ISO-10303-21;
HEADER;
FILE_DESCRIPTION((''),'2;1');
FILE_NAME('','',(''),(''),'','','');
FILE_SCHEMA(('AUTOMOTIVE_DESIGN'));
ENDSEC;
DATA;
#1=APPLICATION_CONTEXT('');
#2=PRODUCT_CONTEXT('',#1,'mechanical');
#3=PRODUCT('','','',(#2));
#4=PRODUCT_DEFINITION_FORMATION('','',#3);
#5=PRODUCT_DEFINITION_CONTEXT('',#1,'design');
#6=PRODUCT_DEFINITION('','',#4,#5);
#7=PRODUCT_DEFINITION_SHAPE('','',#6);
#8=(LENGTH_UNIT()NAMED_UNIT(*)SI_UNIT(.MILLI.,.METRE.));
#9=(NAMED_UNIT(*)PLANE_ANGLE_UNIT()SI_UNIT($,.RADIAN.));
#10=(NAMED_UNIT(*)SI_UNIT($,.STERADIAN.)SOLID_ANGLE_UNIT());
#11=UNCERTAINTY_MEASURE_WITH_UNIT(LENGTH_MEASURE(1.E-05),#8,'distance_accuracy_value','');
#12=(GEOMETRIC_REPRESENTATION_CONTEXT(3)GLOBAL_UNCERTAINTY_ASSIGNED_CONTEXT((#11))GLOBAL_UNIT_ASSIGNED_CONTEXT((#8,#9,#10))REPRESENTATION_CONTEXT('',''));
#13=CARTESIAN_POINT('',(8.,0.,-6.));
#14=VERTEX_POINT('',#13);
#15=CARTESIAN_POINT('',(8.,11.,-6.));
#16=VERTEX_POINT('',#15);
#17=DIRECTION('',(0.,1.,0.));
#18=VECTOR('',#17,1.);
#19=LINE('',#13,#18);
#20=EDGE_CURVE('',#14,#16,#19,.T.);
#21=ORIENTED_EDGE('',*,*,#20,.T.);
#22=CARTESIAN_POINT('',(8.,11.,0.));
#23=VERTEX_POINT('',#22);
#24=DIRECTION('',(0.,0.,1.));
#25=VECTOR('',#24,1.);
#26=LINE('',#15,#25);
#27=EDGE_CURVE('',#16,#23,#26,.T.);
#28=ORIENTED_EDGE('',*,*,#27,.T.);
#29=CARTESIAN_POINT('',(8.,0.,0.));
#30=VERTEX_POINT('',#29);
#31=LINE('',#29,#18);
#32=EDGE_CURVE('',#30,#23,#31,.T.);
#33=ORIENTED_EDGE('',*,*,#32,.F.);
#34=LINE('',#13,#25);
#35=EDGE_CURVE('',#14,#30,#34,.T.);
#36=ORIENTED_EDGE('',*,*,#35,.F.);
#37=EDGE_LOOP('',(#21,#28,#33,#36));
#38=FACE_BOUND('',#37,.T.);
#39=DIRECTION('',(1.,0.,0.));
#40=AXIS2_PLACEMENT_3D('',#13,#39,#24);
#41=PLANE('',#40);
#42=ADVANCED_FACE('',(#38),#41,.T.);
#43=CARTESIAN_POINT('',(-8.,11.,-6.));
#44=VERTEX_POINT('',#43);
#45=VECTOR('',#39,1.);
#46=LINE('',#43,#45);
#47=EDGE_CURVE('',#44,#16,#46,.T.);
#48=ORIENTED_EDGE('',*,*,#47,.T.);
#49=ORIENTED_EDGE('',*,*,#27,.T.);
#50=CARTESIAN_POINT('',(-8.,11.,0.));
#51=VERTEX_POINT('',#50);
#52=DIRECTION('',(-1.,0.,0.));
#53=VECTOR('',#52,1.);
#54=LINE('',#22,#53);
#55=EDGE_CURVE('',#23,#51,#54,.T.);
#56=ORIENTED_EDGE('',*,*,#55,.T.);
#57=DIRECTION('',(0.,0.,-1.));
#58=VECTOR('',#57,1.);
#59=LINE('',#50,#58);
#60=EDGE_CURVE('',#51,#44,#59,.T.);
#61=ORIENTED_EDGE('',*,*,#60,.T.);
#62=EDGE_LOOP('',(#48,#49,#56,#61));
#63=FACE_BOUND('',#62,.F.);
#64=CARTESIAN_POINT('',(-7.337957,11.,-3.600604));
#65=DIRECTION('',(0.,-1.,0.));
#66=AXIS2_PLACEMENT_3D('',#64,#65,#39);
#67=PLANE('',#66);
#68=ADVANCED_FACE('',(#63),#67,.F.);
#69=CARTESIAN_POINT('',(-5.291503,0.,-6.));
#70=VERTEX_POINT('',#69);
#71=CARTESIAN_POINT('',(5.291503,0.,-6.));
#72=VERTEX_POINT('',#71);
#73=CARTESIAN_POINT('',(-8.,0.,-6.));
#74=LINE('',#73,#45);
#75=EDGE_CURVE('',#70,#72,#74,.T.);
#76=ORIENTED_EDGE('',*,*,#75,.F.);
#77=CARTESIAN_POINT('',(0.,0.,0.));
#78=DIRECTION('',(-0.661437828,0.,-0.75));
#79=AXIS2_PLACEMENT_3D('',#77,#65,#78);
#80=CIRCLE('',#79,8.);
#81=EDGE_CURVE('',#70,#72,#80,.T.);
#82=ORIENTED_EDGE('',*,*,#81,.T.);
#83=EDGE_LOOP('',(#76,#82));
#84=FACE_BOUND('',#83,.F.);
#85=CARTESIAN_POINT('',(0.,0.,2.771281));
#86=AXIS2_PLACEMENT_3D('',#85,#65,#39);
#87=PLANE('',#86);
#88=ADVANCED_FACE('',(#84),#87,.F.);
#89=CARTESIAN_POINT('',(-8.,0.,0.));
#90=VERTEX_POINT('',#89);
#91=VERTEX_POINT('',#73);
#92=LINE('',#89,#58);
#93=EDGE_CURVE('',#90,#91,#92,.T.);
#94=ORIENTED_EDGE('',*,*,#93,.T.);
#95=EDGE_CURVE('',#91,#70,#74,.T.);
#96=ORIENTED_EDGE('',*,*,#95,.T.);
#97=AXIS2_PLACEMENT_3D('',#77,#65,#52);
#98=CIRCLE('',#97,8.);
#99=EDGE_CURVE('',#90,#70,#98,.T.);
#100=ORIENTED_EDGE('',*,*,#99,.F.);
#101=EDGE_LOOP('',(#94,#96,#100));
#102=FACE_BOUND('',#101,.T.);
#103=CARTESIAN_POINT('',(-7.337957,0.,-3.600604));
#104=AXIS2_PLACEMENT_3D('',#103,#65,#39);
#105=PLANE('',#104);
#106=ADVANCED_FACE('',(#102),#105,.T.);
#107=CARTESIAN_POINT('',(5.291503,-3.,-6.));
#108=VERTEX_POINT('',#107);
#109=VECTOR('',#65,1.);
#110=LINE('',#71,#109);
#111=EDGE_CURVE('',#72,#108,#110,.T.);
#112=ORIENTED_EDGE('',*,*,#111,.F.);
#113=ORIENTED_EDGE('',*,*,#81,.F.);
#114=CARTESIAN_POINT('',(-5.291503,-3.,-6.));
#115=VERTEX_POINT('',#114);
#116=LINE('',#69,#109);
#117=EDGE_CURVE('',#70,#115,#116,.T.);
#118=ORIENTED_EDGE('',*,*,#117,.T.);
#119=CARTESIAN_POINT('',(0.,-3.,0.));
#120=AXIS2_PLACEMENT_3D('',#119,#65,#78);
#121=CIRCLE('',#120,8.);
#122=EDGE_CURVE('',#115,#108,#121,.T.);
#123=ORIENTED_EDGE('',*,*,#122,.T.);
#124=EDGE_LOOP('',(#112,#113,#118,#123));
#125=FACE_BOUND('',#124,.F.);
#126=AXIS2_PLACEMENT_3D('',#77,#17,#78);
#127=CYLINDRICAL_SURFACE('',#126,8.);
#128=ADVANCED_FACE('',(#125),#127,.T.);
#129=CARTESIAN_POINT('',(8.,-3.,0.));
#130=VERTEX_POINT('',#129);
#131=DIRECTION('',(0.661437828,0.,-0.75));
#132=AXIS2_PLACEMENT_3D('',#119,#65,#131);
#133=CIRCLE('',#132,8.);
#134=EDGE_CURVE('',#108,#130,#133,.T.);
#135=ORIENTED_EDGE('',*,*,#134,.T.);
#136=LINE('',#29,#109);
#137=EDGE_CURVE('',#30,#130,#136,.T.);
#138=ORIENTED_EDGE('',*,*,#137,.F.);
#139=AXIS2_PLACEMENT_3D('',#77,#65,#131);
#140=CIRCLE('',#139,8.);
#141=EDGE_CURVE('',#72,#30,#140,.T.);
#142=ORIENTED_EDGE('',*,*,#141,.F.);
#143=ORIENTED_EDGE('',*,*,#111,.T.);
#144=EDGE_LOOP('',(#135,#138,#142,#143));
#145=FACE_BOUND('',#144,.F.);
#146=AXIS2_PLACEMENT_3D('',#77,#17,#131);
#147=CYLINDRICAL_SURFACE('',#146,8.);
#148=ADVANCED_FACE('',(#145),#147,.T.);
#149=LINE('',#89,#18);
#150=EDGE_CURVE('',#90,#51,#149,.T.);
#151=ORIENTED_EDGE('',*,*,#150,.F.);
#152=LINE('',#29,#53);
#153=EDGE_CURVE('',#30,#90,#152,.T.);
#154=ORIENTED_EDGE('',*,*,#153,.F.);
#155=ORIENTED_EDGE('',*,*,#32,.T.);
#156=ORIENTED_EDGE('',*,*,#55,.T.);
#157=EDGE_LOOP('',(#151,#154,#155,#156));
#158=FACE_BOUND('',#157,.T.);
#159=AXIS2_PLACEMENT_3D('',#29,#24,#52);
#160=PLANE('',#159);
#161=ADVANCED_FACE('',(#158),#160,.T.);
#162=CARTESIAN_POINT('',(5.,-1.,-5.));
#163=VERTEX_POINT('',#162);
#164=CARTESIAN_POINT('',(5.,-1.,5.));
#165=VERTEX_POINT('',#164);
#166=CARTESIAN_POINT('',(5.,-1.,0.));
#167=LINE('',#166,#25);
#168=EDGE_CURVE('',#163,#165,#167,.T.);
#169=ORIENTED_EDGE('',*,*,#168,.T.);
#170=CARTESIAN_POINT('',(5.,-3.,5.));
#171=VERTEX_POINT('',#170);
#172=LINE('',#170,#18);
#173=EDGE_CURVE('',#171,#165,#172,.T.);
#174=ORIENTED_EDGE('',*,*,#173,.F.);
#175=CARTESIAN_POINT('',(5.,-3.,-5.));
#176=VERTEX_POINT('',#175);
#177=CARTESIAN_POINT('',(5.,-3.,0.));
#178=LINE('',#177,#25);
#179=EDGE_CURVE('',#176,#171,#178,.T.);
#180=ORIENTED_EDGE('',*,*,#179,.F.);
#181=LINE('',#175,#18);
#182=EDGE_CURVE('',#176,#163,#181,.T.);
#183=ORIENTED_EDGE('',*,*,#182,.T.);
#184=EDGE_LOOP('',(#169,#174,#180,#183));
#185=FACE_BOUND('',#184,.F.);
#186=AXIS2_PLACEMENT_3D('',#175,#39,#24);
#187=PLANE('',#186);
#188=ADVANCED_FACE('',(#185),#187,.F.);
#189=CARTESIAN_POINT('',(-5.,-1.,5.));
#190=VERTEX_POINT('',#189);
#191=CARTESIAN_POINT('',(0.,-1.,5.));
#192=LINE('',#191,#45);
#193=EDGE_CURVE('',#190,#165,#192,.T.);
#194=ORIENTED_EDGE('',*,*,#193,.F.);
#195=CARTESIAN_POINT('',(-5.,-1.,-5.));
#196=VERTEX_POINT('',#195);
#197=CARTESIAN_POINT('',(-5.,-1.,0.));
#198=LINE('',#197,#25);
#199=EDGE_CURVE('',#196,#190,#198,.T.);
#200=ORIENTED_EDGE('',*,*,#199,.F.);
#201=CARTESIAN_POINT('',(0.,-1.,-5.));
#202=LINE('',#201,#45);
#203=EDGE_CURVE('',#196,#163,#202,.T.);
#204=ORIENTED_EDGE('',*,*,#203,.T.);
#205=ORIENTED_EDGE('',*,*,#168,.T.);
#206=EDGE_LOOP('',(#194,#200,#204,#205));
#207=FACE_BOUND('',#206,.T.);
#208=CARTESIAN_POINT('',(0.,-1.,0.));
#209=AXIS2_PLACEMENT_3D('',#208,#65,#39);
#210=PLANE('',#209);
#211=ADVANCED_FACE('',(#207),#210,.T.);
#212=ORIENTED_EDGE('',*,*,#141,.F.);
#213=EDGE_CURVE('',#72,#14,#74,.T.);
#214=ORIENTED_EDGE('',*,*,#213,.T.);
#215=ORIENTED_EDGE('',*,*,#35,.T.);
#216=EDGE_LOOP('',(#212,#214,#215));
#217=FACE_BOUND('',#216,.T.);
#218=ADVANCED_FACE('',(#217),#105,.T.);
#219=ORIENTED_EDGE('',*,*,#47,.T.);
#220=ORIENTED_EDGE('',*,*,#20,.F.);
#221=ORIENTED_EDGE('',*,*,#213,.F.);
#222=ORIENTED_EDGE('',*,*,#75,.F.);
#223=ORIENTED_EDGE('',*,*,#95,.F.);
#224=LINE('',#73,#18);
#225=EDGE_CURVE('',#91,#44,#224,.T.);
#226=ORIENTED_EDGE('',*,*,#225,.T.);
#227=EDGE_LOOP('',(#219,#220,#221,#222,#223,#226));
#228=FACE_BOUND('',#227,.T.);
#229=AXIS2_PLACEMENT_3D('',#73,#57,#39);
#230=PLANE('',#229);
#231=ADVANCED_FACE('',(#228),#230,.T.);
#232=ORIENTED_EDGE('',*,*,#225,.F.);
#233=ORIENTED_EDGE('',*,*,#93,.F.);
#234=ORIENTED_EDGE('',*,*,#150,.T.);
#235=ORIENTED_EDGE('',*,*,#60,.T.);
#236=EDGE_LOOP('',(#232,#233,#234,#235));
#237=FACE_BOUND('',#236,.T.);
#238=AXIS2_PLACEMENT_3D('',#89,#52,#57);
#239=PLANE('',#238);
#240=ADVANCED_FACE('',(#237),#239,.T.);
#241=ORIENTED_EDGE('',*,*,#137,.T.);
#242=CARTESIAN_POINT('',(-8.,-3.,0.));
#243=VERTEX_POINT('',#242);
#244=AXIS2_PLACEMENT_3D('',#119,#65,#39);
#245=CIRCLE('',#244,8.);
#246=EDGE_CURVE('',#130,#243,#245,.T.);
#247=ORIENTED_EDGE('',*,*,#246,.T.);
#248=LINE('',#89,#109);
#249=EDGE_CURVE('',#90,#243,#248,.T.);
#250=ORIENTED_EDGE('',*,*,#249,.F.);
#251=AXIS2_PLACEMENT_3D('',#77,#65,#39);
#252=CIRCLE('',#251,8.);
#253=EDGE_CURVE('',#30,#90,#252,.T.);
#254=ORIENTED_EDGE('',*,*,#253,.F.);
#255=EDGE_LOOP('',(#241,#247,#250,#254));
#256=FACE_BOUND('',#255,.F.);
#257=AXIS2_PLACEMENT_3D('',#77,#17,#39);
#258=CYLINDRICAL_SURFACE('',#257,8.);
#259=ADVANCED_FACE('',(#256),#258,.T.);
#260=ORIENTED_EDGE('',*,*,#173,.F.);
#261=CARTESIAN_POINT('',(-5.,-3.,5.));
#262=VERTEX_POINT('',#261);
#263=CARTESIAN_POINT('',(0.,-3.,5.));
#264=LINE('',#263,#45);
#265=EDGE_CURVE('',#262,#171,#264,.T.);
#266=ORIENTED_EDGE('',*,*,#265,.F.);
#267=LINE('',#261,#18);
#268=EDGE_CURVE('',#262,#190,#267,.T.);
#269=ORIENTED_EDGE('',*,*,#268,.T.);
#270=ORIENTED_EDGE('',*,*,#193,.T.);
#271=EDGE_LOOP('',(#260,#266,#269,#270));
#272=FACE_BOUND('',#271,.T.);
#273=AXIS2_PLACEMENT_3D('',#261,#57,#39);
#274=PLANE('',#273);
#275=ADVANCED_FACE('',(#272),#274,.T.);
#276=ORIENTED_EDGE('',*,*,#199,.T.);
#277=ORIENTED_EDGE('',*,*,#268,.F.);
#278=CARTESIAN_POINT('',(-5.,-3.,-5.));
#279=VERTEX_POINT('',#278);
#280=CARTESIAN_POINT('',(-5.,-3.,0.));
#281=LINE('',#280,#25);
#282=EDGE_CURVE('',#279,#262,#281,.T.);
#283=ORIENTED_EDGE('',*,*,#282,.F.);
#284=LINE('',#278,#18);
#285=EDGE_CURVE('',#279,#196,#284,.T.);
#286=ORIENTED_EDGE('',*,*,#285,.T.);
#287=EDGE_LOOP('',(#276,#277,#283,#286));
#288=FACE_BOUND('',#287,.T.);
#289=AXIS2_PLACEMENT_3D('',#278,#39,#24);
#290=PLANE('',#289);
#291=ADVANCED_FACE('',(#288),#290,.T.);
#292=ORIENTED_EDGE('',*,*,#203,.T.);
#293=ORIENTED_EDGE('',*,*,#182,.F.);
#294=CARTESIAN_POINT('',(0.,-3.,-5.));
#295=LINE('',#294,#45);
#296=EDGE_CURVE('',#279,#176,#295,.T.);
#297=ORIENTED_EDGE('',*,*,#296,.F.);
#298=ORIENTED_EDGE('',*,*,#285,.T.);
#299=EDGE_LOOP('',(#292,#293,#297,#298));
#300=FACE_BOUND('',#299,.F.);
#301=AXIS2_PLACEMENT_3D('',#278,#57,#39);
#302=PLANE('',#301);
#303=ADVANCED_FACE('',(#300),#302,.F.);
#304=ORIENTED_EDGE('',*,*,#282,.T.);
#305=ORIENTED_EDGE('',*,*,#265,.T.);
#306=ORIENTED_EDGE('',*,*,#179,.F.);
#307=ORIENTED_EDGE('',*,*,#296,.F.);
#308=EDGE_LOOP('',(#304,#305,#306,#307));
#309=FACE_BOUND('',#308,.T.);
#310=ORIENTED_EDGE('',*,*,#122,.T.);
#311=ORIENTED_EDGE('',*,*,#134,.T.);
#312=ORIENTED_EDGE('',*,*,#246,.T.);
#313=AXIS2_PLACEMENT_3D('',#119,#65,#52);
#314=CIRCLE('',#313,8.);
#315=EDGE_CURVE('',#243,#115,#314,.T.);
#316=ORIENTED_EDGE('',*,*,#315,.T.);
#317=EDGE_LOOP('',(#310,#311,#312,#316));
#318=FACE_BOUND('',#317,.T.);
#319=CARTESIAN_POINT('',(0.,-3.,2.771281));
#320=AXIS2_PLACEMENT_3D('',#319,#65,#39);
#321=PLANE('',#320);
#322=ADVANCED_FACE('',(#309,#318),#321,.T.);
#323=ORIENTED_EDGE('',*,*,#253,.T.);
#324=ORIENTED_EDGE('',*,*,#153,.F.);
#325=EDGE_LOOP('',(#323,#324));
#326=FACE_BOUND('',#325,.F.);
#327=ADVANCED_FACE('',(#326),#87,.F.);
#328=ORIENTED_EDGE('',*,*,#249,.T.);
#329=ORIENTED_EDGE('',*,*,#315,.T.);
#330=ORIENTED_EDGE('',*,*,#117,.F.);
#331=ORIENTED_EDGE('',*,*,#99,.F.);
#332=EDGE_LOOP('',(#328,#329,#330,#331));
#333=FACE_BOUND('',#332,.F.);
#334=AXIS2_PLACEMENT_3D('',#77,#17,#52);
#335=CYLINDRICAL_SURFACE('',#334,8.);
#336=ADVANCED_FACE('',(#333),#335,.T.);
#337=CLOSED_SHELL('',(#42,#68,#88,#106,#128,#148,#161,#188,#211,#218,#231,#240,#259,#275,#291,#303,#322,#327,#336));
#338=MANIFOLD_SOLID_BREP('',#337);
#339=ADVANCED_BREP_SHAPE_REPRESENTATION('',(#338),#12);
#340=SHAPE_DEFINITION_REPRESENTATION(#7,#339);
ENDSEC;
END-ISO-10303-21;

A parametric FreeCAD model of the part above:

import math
import FreeCAD as App
import Part
import Sketcher
Q = App.Units.Quantity

doc = App.newDocument("Part")
body = doc.addObject("PartDesign::Body", "Body")

# Sketch on XZ plane
sketch1 = doc.addObject("Sketcher::SketchObject", "Sketch")
body.addObject(sketch1)
sketch1.AttachmentSupport = (doc.XZ_Plane, [""])
sketch1.MapMode = "FlatFace"
sketch1.addGeometry([
    Part.LineSegment(App.Vector(-8, 0, 0), App.Vector(-8, -6, 0)),
    Part.LineSegment(App.Vector(-8, -6, 0), App.Vector(8, -6, 0)),
    Part.LineSegment(App.Vector(8, -6, 0), App.Vector(8, 0, 0)),
    Part.LineSegment(App.Vector(8, 0, 0), App.Vector(-8, 0, 0)),
], False)
sketch1.addConstraint([
    Sketcher.Constraint("Coincident", 0, 2, 1, 1),
    Sketcher.Constraint("Coincident", 1, 2, 2, 1),
    Sketcher.Constraint("Coincident", 2, 2, 3, 1),
    Sketcher.Constraint("Coincident", 3, 2, 0, 1),
    Sketcher.Constraint("Vertical", 0),
    Sketcher.Constraint("Horizontal", 1),
    Sketcher.Constraint("Vertical", 2),
    Sketcher.Constraint("Horizontal", 3),
    Sketcher.Constraint("Symmetric", 2, 2, 3, 2, -1, 1),
    Sketcher.Constraint("DistanceX", 1, 1, 1, 2, Q("16 mm")),
    Sketcher.Constraint("DistanceY", 0, 2, 0, 1, Q("6 mm")),
])
pad1 = doc.addObject("PartDesign::Pad", "Pad")
body.addObject(pad1)
pad1.Profile = sketch1
pad1.Length = 11
pad1.Reversed = True

# Sketch on XZ plane
sketch2 = doc.addObject("Sketcher::SketchObject", "Sketch001")
body.addObject(sketch2)
sketch2.AttachmentSupport = (doc.XZ_Plane, [""])
sketch2.MapMode = "FlatFace"
sketch2.addGeometry([
    Part.ArcOfCircle(Part.Circle(App.Vector(0, 0, 0), App.Vector(0, 0, 1), 8), math.radians(0), math.radians(180)),
    Part.ArcOfCircle(Part.Circle(App.Vector(0, 0, 0), App.Vector(0, 0, 1), 8), math.radians(180), math.radians(228.590378)),
    Part.ArcOfCircle(Part.Circle(App.Vector(0, 0, 0), App.Vector(0, 0, 1), 8), math.radians(-131.409622), math.radians(-48.590378)),
    Part.ArcOfCircle(Part.Circle(App.Vector(0, 0, 0), App.Vector(0, 0, 1), 8), math.radians(-48.590378), math.radians(0)),
], False)
sketch2.addConstraint([
    Sketcher.Constraint("Tangent", 0, 2, 1, 1),
    Sketcher.Constraint("Tangent", 1, 2, 2, 1),
    Sketcher.Constraint("Tangent", 2, 2, 3, 1),
    Sketcher.Constraint("Tangent", 3, 2, 0, 1),
    Sketcher.Constraint("Coincident", 0, 3, -1, 1),
    Sketcher.Constraint("Equal", 0, 1),
    Sketcher.Constraint("PointOnObject", 0, 2, -1),
    Sketcher.Constraint("PointOnObject", 3, 2, -1),
    Sketcher.Constraint("Horizontal", 1, 2, 2, 2),
    Sketcher.Constraint("Radius", 0, Q("8 mm")),
    Sketcher.Constraint("DistanceY", 1, 2, -1, 1, Q("6 mm")),
])
pad2 = doc.addObject("PartDesign::Pad", "Pad001")
body.addObject(pad2)
pad2.Profile = sketch2
pad2.Length = 3

# Sketch on XZ plane
sketch3 = doc.addObject("Sketcher::SketchObject", "Sketch002")
body.addObject(sketch3)
sketch3.AttachmentSupport = (doc.XZ_Plane, [""])
sketch3.MapMode = "FlatFace"
sketch3.AttachmentOffset = App.Placement(App.Vector(0, 0, 3), App.Rotation())
sketch3.addGeometry([
    Part.LineSegment(App.Vector(-5, 5, 0), App.Vector(-5, -5, 0)),
    Part.LineSegment(App.Vector(-5, -5, 0), App.Vector(5, -5, 0)),
    Part.LineSegment(App.Vector(5, -5, 0), App.Vector(5, 5, 0)),
    Part.LineSegment(App.Vector(5, 5, 0), App.Vector(-5, 5, 0)),
], False)
sketch3.addConstraint([
    Sketcher.Constraint("Coincident", 0, 2, 1, 1),
    Sketcher.Constraint("Coincident", 1, 2, 2, 1),
    Sketcher.Constraint("Coincident", 2, 2, 3, 1),
    Sketcher.Constraint("Coincident", 3, 2, 0, 1),
    Sketcher.Constraint("Vertical", 0),
    Sketcher.Constraint("Horizontal", 1),
    Sketcher.Constraint("Vertical", 2),
    Sketcher.Constraint("Horizontal", 3),
    Sketcher.Constraint("Symmetric", 0, 2, 2, 2, -1, 1),
    Sketcher.Constraint("Equal", 3, 0),
    Sketcher.Constraint("DistanceX", 1, 1, 1, 2, Q("10 mm")),
])
pocket1 = doc.addObject("PartDesign::Pocket", "Pocket")
body.addObject(pocket1)
pocket1.Profile = sketch3
pocket1.Length = 2

doc.recompute()
